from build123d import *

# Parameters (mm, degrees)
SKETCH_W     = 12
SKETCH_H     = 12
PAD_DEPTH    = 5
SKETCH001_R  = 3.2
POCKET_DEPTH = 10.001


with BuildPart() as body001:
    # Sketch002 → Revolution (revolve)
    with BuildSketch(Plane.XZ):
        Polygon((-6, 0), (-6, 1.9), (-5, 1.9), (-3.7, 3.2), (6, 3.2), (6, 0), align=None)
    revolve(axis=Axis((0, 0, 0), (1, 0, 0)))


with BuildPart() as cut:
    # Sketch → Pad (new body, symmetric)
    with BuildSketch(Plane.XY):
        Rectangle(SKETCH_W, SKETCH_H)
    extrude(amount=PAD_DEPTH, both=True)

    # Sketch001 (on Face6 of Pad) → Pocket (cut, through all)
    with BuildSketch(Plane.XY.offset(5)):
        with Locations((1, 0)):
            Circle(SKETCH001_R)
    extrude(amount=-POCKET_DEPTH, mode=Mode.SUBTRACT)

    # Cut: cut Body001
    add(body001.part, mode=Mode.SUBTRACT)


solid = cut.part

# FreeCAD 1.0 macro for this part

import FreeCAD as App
import Part
import Sketcher

V = App.Vector
Q = App.Units.Quantity

doc = App.newDocument("Part")
body = doc.addObject("PartDesign::Body", "Body")

# Sketch on XZ plane
sketch1 = body.newObject("Sketcher::SketchObject", "Sketch")
sketch1.AttachmentSupport = (doc.getObject("XZ_Plane"), [""])
sketch1.MapMode = "FlatFace"
sketch1.addGeometry([
    Part.LineSegment(V(-6, 1.9, 0), V(-6, 0, 0)),  # 0
    Part.LineSegment(V(-6, 0, 0), V(6, 0, 0)),  # 1
    Part.LineSegment(V(6, 0, 0), V(6, 3.2, 0)),  # 2
    Part.LineSegment(V(6, 3.2, 0), V(-3.7, 3.2, 0)),  # 3
    Part.LineSegment(V(-3.7, 3.2, 0), V(-5, 1.9, 0)),  # 4
    Part.LineSegment(V(-5, 1.9, 0), V(-6, 1.9, 0)),  # 5
], False)
sketch1.addConstraint([
    Sketcher.Constraint("Coincident", 0, 2, 1, 1),
    Sketcher.Constraint("Coincident", 1, 2, 2, 1),
    Sketcher.Constraint("Coincident", 2, 2, 3, 1),
    Sketcher.Constraint("Coincident", 3, 2, 4, 1),
    Sketcher.Constraint("Coincident", 4, 2, 5, 1),
    Sketcher.Constraint("Coincident", 5, 2, 0, 1),
    Sketcher.Constraint("Vertical", 0),
    Sketcher.Constraint("Horizontal", 1),
    Sketcher.Constraint("Vertical", 2),
    Sketcher.Constraint("Horizontal", 3),
    Sketcher.Constraint("Horizontal", 5),
    Sketcher.Constraint("Symmetric", 0, 2, 1, 2, -1, 1),
    Sketcher.Constraint("DistanceX", 1, 1, 1, 2, Q("12 mm")),
    Sketcher.Constraint("DistanceX", 5, 2, 5, 1, Q("1 mm")),
    Sketcher.Constraint("Angle", 4, Q("-135 deg")),
    Sketcher.Constraint("DistanceX", 3, 2, 3, 1, Q("9.7 mm")),
    Sketcher.Constraint("DistanceY", 0, 2, 0, 1, Q("1.9 mm")),
])
revolution = body.newObject("PartDesign::Revolution", "Revolution")
revolution.Profile = sketch1
revolution.ReferenceAxis = (sketch1, ["H_Axis"])
revolution.Angle = 360
body2 = doc.addObject("PartDesign::Body", "Body001")

# Sketch on XY plane
sketch2 = body2.newObject("Sketcher::SketchObject", "Sketch001")
sketch2.AttachmentSupport = (doc.getObject("XY_Plane001"), [""])
sketch2.MapMode = "FlatFace"
sketch2.addGeometry([
    Part.LineSegment(V(-6, 6, 0), V(-6, -6, 0)),
    Part.LineSegment(V(-6, -6, 0), V(6, -6, 0)),
    Part.LineSegment(V(6, -6, 0), V(6, 6, 0)),
    Part.LineSegment(V(6, 6, 0), V(-6, 6, 0)),
], False)
sketch2.addConstraint([
    Sketcher.Constraint("Coincident", 0, 2, 1, 1),
    Sketcher.Constraint("Coincident", 1, 2, 2, 1),
    Sketcher.Constraint("Coincident", 2, 2, 3, 1),
    Sketcher.Constraint("Coincident", 3, 2, 0, 1),
    Sketcher.Constraint("Vertical", 0),
    Sketcher.Constraint("Horizontal", 1),
    Sketcher.Constraint("Vertical", 2),
    Sketcher.Constraint("Horizontal", 3),
    Sketcher.Constraint("Symmetric", 0, 2, 2, 2, -1, 1),
    Sketcher.Constraint("Equal", 3, 0),
    Sketcher.Constraint("DistanceX", 1, 1, 1, 2, Q("12 mm")),
])
pad1 = body2.newObject("PartDesign::Pad", "Pad")
pad1.Profile = sketch2
pad1.Length = 10
pad1.Midplane = True

# Sketch on XY plane
sketch3 = body2.newObject("Sketcher::SketchObject", "Sketch002")
sketch3.AttachmentSupport = (doc.getObject("XY_Plane001"), [""])
sketch3.MapMode = "FlatFace"
sketch3.AttachmentOffset = App.Placement(V(0, 0, 5), App.Rotation())
sketch3.addGeometry(Part.Circle(V(1, 0, 0), V(0, 0, 1), 3.2), False)
sketch3.addConstraint([
    Sketcher.Constraint("PointOnObject", 0, 3, -1),
    Sketcher.Constraint("Diameter", 0, Q("6.4 mm")),
    Sketcher.Constraint("DistanceX", -1, 1, 0, 3, Q("1 mm")),
])
pocket1 = body2.newObject("PartDesign::Pocket", "Pocket")
pocket1.Profile = sketch3
pocket1.Type = "ThroughAll"
doc.recompute()

boolean = body2.newObject("PartDesign::Boolean", "Boolean")
boolean.Type = "Cut"
boolean.addObjects([body])

doc.recompute()
